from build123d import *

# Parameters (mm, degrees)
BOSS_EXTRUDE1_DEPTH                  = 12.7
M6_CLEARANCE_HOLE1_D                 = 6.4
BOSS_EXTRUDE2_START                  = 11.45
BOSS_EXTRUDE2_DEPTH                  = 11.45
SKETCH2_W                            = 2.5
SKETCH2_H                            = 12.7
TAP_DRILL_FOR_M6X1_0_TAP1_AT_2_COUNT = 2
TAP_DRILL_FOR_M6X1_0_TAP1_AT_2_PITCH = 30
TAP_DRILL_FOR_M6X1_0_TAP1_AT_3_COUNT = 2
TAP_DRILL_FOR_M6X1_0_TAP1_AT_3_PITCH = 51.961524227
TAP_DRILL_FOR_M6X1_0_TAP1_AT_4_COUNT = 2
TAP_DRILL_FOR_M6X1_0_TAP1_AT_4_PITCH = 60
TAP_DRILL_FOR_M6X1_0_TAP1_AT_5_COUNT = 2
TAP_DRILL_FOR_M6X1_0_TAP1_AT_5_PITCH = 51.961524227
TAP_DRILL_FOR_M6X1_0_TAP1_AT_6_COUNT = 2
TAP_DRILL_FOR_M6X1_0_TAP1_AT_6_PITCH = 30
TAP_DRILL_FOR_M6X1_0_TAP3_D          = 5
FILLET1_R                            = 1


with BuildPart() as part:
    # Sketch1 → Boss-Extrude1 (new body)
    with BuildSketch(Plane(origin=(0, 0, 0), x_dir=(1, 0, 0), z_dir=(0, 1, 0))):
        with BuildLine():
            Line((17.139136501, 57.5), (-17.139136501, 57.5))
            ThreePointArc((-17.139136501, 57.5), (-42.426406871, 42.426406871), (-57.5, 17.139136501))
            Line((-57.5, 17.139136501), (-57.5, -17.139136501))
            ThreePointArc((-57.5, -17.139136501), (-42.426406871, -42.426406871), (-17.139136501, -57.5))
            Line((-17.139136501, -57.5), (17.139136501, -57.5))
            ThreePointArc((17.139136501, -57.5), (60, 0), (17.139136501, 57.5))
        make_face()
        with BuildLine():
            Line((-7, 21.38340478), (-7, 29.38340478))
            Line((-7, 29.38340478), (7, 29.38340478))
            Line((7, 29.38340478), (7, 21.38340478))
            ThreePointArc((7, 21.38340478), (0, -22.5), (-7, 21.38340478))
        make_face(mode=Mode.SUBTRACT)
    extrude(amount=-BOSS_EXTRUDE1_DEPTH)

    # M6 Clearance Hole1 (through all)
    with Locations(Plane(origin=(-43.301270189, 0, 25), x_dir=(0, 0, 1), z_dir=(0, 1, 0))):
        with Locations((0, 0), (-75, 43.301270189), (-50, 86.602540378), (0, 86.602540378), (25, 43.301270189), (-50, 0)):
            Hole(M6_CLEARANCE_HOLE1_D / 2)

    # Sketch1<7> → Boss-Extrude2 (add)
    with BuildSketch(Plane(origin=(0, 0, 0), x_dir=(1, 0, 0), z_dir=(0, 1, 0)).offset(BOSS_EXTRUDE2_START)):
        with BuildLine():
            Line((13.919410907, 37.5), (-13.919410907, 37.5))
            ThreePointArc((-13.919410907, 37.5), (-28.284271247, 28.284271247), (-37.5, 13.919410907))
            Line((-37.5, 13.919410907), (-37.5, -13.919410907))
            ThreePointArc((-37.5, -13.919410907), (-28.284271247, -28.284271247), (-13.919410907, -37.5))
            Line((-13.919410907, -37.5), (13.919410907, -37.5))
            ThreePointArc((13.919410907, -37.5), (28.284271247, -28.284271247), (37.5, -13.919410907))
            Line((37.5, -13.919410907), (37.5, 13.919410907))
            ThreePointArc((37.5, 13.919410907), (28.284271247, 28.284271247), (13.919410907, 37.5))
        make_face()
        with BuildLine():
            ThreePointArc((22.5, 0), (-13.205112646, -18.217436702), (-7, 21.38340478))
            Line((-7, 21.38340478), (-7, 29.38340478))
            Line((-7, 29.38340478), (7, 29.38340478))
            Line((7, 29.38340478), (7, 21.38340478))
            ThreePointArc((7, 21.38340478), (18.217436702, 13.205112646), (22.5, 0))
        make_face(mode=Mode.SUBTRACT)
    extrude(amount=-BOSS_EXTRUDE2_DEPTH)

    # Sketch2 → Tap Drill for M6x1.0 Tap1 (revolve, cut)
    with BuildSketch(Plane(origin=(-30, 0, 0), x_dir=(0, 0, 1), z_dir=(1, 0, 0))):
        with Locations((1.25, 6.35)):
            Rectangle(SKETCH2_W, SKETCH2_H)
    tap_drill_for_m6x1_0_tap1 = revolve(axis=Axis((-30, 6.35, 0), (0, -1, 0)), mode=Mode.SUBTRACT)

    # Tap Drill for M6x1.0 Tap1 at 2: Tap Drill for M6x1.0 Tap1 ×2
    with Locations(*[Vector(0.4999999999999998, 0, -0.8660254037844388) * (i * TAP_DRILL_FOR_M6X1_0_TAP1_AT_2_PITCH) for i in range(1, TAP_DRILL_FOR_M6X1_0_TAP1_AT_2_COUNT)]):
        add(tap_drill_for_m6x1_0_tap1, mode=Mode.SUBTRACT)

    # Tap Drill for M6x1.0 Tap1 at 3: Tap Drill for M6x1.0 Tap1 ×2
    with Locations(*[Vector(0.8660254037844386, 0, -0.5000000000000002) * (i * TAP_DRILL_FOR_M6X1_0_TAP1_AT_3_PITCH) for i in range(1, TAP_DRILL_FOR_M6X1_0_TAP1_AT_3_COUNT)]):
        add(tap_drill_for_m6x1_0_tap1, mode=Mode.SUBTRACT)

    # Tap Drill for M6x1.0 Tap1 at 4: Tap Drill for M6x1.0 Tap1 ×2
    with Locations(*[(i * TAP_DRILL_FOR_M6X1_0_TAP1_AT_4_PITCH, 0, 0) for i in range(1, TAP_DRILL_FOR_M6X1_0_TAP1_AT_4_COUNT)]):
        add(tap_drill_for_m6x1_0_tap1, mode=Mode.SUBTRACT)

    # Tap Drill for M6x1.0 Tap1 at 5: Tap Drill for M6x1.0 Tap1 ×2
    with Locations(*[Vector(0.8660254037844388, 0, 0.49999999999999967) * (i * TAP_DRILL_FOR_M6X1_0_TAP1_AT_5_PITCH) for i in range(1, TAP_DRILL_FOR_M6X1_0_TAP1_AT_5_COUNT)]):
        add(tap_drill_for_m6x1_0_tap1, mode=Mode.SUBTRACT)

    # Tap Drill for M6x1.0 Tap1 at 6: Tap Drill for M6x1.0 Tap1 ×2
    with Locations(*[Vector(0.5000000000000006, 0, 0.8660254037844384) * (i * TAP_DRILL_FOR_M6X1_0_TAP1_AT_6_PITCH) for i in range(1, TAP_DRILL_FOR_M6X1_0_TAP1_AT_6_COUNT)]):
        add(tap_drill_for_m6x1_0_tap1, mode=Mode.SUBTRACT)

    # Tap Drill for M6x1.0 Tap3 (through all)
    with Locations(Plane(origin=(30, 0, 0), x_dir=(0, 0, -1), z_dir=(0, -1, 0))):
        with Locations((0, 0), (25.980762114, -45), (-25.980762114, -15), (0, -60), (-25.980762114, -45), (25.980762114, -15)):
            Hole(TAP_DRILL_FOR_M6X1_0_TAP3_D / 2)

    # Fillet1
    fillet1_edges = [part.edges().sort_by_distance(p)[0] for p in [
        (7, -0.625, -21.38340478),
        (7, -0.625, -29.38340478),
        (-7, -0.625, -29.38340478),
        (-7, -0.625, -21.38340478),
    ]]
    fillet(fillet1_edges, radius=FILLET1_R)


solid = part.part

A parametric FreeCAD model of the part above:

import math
import FreeCAD as App
import Part
import Sketcher

V = App.Vector
Q = App.Units.Quantity


def edges_at(feature, points):
    """Names of the edges that pass closest to the given points."""
    edges = feature.Shape.Edges
    near = lambda p: min(range(len(edges)), key=lambda i: edges[i].distToShape(Part.Vertex(*p))[0])
    return sorted({f"Edge{near(p) + 1}" for p in points})

doc = App.newDocument("Part")
body = doc.addObject("PartDesign::Body", "Body")

# Sketch on XZ plane
sketch1 = body.newObject("Sketcher::SketchObject", "Sketch")
sketch1.AttachmentSupport = (doc.getObject("XZ_Plane"), [""])
sketch1.MapMode = "FlatFace"
sketch1.addGeometry([
    Part.LineSegment(V(17.139137, -57.5, 0), V(-17.139137, -57.5, 0)),  # 0
    Part.ArcOfCircle(Part.Circle(V(0, 0, 0), V(0, 0, 1), 60), math.radians(-163.402158), math.radians(-106.597842)),  # 1
    Part.LineSegment(V(-57.5, -17.139137, 0), V(-57.5, 17.139137, 0)),  # 2
    Part.ArcOfCircle(Part.Circle(V(0, 0, 0), V(0, 0, 1), 60), math.radians(106.597842), math.radians(163.402158)),  # 3
    Part.LineSegment(V(-17.139137, 57.5, 0), V(17.139137, 57.5, 0)),  # 4
    Part.ArcOfCircle(Part.Circle(V(0, 0, 0), V(0, 0, 1), 60), math.radians(-73.402158), math.radians(73.402158)),  # 5
    Part.ArcOfCircle(Part.Circle(V(0, 0, 0), V(0, 0, 1), 22.5), math.radians(-71.873796), math.radians(251.873796)),  # 6
    Part.LineSegment(V(-7, -21.383405, 0), V(-7, -29.383405, 0)),  # 7
    Part.LineSegment(V(-7, -29.383405, 0), V(7, -29.383405, 0)),  # 8
    Part.LineSegment(V(7, -29.383405, 0), V(7, -21.383405, 0)),  # 9
], False)
sketch1.addConstraint([
    Sketcher.Constraint("Coincident", 0, 2, 1, 2),
    Sketcher.Constraint("Coincident", 1, 1, 2, 1),
    Sketcher.Constraint("Coincident", 2, 2, 3, 2),
    Sketcher.Constraint("Coincident", 3, 1, 4, 1),
    Sketcher.Constraint("Coincident", 4, 2, 5, 2),
    Sketcher.Constraint("Coincident", 5, 1, 0, 1),
    Sketcher.Constraint("Coincident", 6, 2, 7, 1),
    Sketcher.Constraint("Coincident", 7, 2, 8, 1),
    Sketcher.Constraint("Coincident", 8, 2, 9, 1),
    Sketcher.Constraint("Coincident", 9, 2, 6, 1),
    Sketcher.Constraint("Horizontal", 0),
    Sketcher.Constraint("Vertical", 2),
    Sketcher.Constraint("Horizontal", 4),
    Sketcher.Constraint("Vertical", 7),
    Sketcher.Constraint("Horizontal", 8),
    Sketcher.Constraint("Vertical", 9),
    Sketcher.Constraint("Coincident", 1, 3, -1, 1),
    Sketcher.Constraint("Coincident", 3, 3, -1, 1),
    Sketcher.Constraint("Coincident", 5, 3, -1, 1),
    Sketcher.Constraint("Coincident", 6, 3, -1, 1),
    Sketcher.Constraint("Equal", 1, 3),
    Sketcher.Constraint("Equal", 3, 5),
    Sketcher.Constraint("Horizontal", 6, 2, 9, 2),
    Sketcher.Constraint("Vertical", 0, 2, 3, 1),
    Sketcher.Constraint("Equal", 4, 2),
    Sketcher.Constraint("Radius", 1, Q("60 mm")),
    Sketcher.Constraint("Radius", 6, Q("22.5 mm")),
    Sketcher.Constraint("DistanceX", 8, 1, 8, 2, Q("14 mm")),
    Sketcher.Constraint("DistanceY", 7, 2, 7, 1, Q("8 mm")),
    Sketcher.Constraint("DistanceY", 0, 2, -1, 1, Q("57.5 mm")),
])
pad1 = body.newObject("PartDesign::Pad", "Pad")
pad1.Profile = sketch1
pad1.Length = 12.7

# Sketch on XZ plane
sketch2 = body.newObject("Sketcher::SketchObject", "Sketch001")
sketch2.AttachmentSupport = (doc.getObject("XZ_Plane"), [""])
sketch2.MapMode = "FlatFace"
sketch2.addGeometry([
    Part.Circle(V(-43.30127, 25, 0), V(0, 0, 1), 3.2),  # 0
    Part.Circle(V(0, -50, 0), V(0, 0, 1), 3.2),  # 1
    Part.Circle(V(43.30127, -25, 0), V(0, 0, 1), 3.2),  # 2
    Part.Circle(V(43.30127, 25, 0), V(0, 0, 1), 3.2),  # 3
    Part.Circle(V(0, 50, 0), V(0, 0, 1), 3.2),  # 4
    Part.Circle(V(-43.30127, -25, 0), V(0, 0, 1), 3.2),  # 5
], False)
sketch2.addConstraint([
    Sketcher.Constraint("Equal", 0, 1),
    Sketcher.Constraint("Equal", 1, 2),
    Sketcher.Constraint("Equal", 2, 3),
    Sketcher.Constraint("Equal", 3, 4),
    Sketcher.Constraint("Equal", 4, 5),
    Sketcher.Constraint("Symmetric", 0, 3, 2, 3, -1, 1),
    Sketcher.Constraint("Symmetric", 1, 3, 4, 3, -1, 1),
    Sketcher.Constraint("Symmetric", 3, 3, 5, 3, -1, 1),
    Sketcher.Constraint("Symmetric", 0, 3, 3, 3, -2),
    Sketcher.Constraint("PointOnObject", 1, 3, -2),
    Sketcher.Constraint("Diameter", 0, Q("6.4 mm")),
    Sketcher.Constraint("DistanceY", -1, 1, 0, 3, Q("25 mm")),
    Sketcher.Constraint("DistanceY", 1, 3, -1, 1, Q("50 mm")),
    Sketcher.Constraint("DistanceX", 0, 3, -1, 1, Q("43.30127 mm")),
])
doc.recompute()
hole = body.newObject("PartDesign::Hole", "Hole")
hole.Profile = sketch2
hole.ThreadType = "None"
hole.Diameter = 6.4
hole.DepthType = "ThroughAll"
hole.Reversed = True

# Sketch on XZ plane
sketch3 = body.newObject("Sketcher::SketchObject", "Sketch002")
sketch3.AttachmentSupport = (doc.getObject("XZ_Plane"), [""])
sketch3.MapMode = "FlatFace"
sketch3.AttachmentOffset = App.Placement(V(0, 0, -11.45), App.Rotation())
sketch3.addGeometry([
    Part.LineSegment(V(13.919411, -37.5, 0), V(-13.919411, -37.5, 0)),  # 0
    Part.ArcOfCircle(Part.Circle(V(0, 0, 0), V(0, 0, 1), 40), math.radians(-159.635865), math.radians(-110.364135)),  # 1
    Part.LineSegment(V(-37.5, -13.919411, 0), V(-37.5, 13.919411, 0)),  # 2
    Part.ArcOfCircle(Part.Circle(V(0, 0, 0), V(0, 0, 1), 40), math.radians(110.364135), math.radians(159.635865)),  # 3
    Part.LineSegment(V(-13.919411, 37.5, 0), V(13.919411, 37.5, 0)),  # 4
    Part.ArcOfCircle(Part.Circle(V(0, 0, 0), V(0, 0, 1), 40), math.radians(20.364135), math.radians(69.635865)),  # 5
    Part.LineSegment(V(37.5, 13.919411, 0), V(37.5, -13.919411, 0)),  # 6
    Part.ArcOfCircle(Part.Circle(V(0, 0, 0), V(0, 0, 1), 40), math.radians(-69.635865), math.radians(-20.364135)),  # 7
    Part.ArcOfCircle(Part.Circle(V(0, 0, 0), V(0, 0, 1), 22.5), math.radians(-71.873796), math.radians(0)),  # 8
    Part.ArcOfCircle(Part.Circle(V(0, 0, 0), V(0, 0, 1), 22.5), math.radians(0), math.radians(251.873796)),  # 9
    Part.LineSegment(V(-7, -21.383405, 0), V(-7, -29.383405, 0)),  # 10
    Part.LineSegment(V(-7, -29.383405, 0), V(7, -29.383405, 0)),  # 11
    Part.LineSegment(V(7, -29.383405, 0), V(7, -21.383405, 0)),  # 12
], False)
sketch3.addConstraint([
    Sketcher.Constraint("Coincident", 0, 2, 1, 2),
    Sketcher.Constraint("Coincident", 1, 1, 2, 1),
    Sketcher.Constraint("Coincident", 2, 2, 3, 2),
    Sketcher.Constraint("Coincident", 3, 1, 4, 1),
    Sketcher.Constraint("Coincident", 4, 2, 5, 2),
    Sketcher.Constraint("Coincident", 5, 1, 6, 1),
    Sketcher.Constraint("Coincident", 6, 2, 7, 2),
    Sketcher.Constraint("Coincident", 7, 1, 0, 1),
    Sketcher.Constraint("Tangent", 8, 2, 9, 1),
    Sketcher.Constraint("Coincident", 9, 2, 10, 1),
    Sketcher.Constraint("Coincident", 10, 2, 11, 1),
    Sketcher.Constraint("Coincident", 11, 2, 12, 1),
    Sketcher.Constraint("Coincident", 12, 2, 8, 1),
    Sketcher.Constraint("Horizontal", 0),
    Sketcher.Constraint("Vertical", 2),
    Sketcher.Constraint("Horizontal", 4),
    Sketcher.Constraint("Vertical", 6),
    Sketcher.Constraint("Vertical", 10),
    Sketcher.Constraint("Horizontal", 11),
    Sketcher.Constraint("Vertical", 12),
    Sketcher.Constraint("Coincident", 1, 3, -1, 1),
    Sketcher.Constraint("Coincident", 3, 3, -1, 1),
    Sketcher.Constraint("Coincident", 5, 3, -1, 1),
    Sketcher.Constraint("Coincident", 7, 3, -1, 1),
    Sketcher.Constraint("Coincident", 8, 3, -1, 1),
    Sketcher.Constraint("Equal", 1, 3),
    Sketcher.Constraint("Equal", 3, 5),
    Sketcher.Constraint("Equal", 5, 7),
    Sketcher.Constraint("Equal", 8, 9),
    Sketcher.Constraint("PointOnObject", 8, 2, -1),
    Sketcher.Constraint("Horizontal", 2, 2, 5, 1),
    Sketcher.Constraint("Horizontal", 9, 2, 12, 2),
    Sketcher.Constraint("Vertical", 0, 2, 3, 1),
    Sketcher.Constraint("Equal", 4, 2),
    Sketcher.Constraint("Radius", 1, Q("40 mm")),
    Sketcher.Constraint("Radius", 8, Q("22.5 mm")),
    Sketcher.Constraint("DistanceX", 11, 1, 11, 2, Q("14 mm")),
    Sketcher.Constraint("DistanceY", 10, 2, 10, 1, Q("8 mm")),
    Sketcher.Constraint("DistanceX", 8, 2, 5, 1, Q("15 mm")),
])
pad2 = body.newObject("PartDesign::Pad", "Pad001")
pad2.Profile = sketch3
pad2.Length = 11.45

# Sketch on YZ plane
sketch4 = body.newObject("Sketcher::SketchObject", "Sketch003")
sketch4.AttachmentSupport = (doc.getObject("YZ_Plane"), [""])
sketch4.MapMode = "FlatFace"
sketch4.AttachmentOffset = App.Placement(V(0, 0, -30), App.Rotation())
sketch4.addGeometry([
    Part.LineSegment(V(-12.7, 0, 0), V(0, 0, 0)),
    Part.LineSegment(V(0, 0, 0), V(0, 2.5, 0)),
    Part.LineSegment(V(0, 2.5, 0), V(-12.7, 2.5, 0)),
    Part.LineSegment(V(-12.7, 2.5, 0), V(-12.7, 0, 0)),
], False)
sketch4.addConstraint([
    Sketcher.Constraint("Coincident", 0, 2, 1, 1),
    Sketcher.Constraint("Coincident", 1, 2, 2, 1),
    Sketcher.Constraint("Coincident", 2, 2, 3, 1),
    Sketcher.Constraint("Coincident", 3, 2, 0, 1),
    Sketcher.Constraint("Horizontal", 0),
    Sketcher.Constraint("Vertical", 1),
    Sketcher.Constraint("Horizontal", 2),
    Sketcher.Constraint("Vertical", 3),
    Sketcher.Constraint("Coincident", 0, 2, -1, 1),
    Sketcher.Constraint("DistanceX", 0, 1, 0, 2, Q("12.7 mm")),
    Sketcher.Constraint("DistanceY", 1, 1, 1, 2, Q("2.5 mm")),
])
groove = body.newObject("PartDesign::Groove", "Groove")
groove.Profile = sketch4
groove.ReferenceAxis = (sketch4, ["H_Axis"])
groove.Angle = 360
doc.recompute()

datumline = body.newObject("PartDesign::Line", "DatumLine")
datumline.Placement = App.Placement(V(0, 0, 0), App.Rotation(V(0, 0, 1), V(0.5, 0, -0.866025404)))
linearpattern = body.newObject("PartDesign::LinearPattern", "LinearPattern")
linearpattern.Originals = [groove]
linearpattern.Direction = (datumline, [""])
linearpattern.Mode = "offset"
linearpattern.Offset = 30
linearpattern.Occurrences = 2
body.Tip = linearpattern
doc.recompute()

datumline2 = body.newObject("PartDesign::Line", "DatumLine001")
datumline2.Placement = App.Placement(V(0, 0, 0), App.Rotation(V(0, 0, 1), V(0.866025404, 0, -0.5)))
linearpattern2 = body.newObject("PartDesign::LinearPattern", "LinearPattern001")
linearpattern2.Originals = [groove]
linearpattern2.Direction = (datumline2, [""])
linearpattern2.Mode = "offset"
linearpattern2.Offset = 51.961524
linearpattern2.Occurrences = 2
body.Tip = linearpattern2
doc.recompute()

linearpattern3 = body.newObject("PartDesign::LinearPattern", "LinearPattern002")
linearpattern3.Originals = [groove]
linearpattern3.Direction = (doc.getObject("X_Axis"), [""])
linearpattern3.Mode = "offset"
linearpattern3.Offset = 60
linearpattern3.Occurrences = 2
body.Tip = linearpattern3
doc.recompute()

datumline3 = body.newObject("PartDesign::Line", "DatumLine002")
datumline3.Placement = App.Placement(V(0, 0, 0), App.Rotation(V(0, 0, 1), V(0.866025404, 0, 0.5)))
linearpattern4 = body.newObject("PartDesign::LinearPattern", "LinearPattern003")
linearpattern4.Originals = [groove]
linearpattern4.Direction = (datumline3, [""])
linearpattern4.Mode = "offset"
linearpattern4.Offset = 51.961524
linearpattern4.Occurrences = 2
body.Tip = linearpattern4
doc.recompute()

datumline4 = body.newObject("PartDesign::Line", "DatumLine003")
datumline4.Placement = App.Placement(V(0, 0, 0), App.Rotation(V(0, 0, 1), V(0.5, 0, 0.866025404)))
linearpattern5 = body.newObject("PartDesign::LinearPattern", "LinearPattern004")
linearpattern5.Originals = [groove]
linearpattern5.Direction = (datumline4, [""])
linearpattern5.Mode = "offset"
linearpattern5.Offset = 30
linearpattern5.Occurrences = 2
body.Tip = linearpattern5

# Sketch on XZ plane
sketch5 = body.newObject("Sketcher::SketchObject", "Sketch004")
sketch5.AttachmentSupport = (doc.getObject("XZ_Plane"), [""])
sketch5.MapMode = "FlatFace"
sketch5.addGeometry([
    Part.Circle(V(30, 0, 0), V(0, 0, 1), 2.5),  # 0
    Part.Circle(V(-15, -25.980762, 0), V(0, 0, 1), 2.5),  # 1
    Part.Circle(V(15, 25.980762, 0), V(0, 0, 1), 2.5),  # 2
    Part.Circle(V(-30, 0, 0), V(0, 0, 1), 2.5),  # 3
    Part.Circle(V(-15, 25.980762, 0), V(0, 0, 1), 2.5),  # 4
    Part.Circle(V(15, -25.980762, 0), V(0, 0, 1), 2.5),  # 5
], False)
sketch5.addConstraint([
    Sketcher.Constraint("Equal", 0, 1),
    Sketcher.Constraint("Equal", 1, 2),
    Sketcher.Constraint("Equal", 2, 3),
    Sketcher.Constraint("Equal", 3, 4),
    Sketcher.Constraint("Equal", 4, 5),
    Sketcher.Constraint("Symmetric", 1, 3, 2, 3, -1, 1),
    Sketcher.Constraint("Symmetric", 0, 3, 3, 3, -1, 1),
    Sketcher.Constraint("Symmetric", 4, 3, 5, 3, -1, 1),
    Sketcher.Constraint("Symmetric", 2, 3, 4, 3, -2),
    Sketcher.Constraint("PointOnObject", 0, 3, -1),
    Sketcher.Constraint("Diameter", 0, Q("5 mm")),
    Sketcher.Constraint("DistanceX", -1, 1, 0, 3, Q("30 mm")),
    Sketcher.Constraint("DistanceX", 1, 3, -1, 1, Q("15 mm")),
    Sketcher.Constraint("DistanceY", 1, 3, -1, 1, Q("25.980762 mm")),
])
doc.recompute()
hole2 = body.newObject("PartDesign::Hole", "Hole001")
hole2.Profile = sketch5
hole2.ThreadType = "None"
hole2.Diameter = 5
hole2.DepthType = "ThroughAll"
doc.recompute()

fillet = body.newObject("PartDesign::Fillet", "Fillet")
fillet.Base = (hole2, edges_at(hole2, [
    (7, -6.35, -21.383),
    (7, -0.625, -29.383),
    (-7, -0.625, -29.383),
    (-7, -6.35, -21.383),
]))
fillet.Radius = 1

doc.recompute()
